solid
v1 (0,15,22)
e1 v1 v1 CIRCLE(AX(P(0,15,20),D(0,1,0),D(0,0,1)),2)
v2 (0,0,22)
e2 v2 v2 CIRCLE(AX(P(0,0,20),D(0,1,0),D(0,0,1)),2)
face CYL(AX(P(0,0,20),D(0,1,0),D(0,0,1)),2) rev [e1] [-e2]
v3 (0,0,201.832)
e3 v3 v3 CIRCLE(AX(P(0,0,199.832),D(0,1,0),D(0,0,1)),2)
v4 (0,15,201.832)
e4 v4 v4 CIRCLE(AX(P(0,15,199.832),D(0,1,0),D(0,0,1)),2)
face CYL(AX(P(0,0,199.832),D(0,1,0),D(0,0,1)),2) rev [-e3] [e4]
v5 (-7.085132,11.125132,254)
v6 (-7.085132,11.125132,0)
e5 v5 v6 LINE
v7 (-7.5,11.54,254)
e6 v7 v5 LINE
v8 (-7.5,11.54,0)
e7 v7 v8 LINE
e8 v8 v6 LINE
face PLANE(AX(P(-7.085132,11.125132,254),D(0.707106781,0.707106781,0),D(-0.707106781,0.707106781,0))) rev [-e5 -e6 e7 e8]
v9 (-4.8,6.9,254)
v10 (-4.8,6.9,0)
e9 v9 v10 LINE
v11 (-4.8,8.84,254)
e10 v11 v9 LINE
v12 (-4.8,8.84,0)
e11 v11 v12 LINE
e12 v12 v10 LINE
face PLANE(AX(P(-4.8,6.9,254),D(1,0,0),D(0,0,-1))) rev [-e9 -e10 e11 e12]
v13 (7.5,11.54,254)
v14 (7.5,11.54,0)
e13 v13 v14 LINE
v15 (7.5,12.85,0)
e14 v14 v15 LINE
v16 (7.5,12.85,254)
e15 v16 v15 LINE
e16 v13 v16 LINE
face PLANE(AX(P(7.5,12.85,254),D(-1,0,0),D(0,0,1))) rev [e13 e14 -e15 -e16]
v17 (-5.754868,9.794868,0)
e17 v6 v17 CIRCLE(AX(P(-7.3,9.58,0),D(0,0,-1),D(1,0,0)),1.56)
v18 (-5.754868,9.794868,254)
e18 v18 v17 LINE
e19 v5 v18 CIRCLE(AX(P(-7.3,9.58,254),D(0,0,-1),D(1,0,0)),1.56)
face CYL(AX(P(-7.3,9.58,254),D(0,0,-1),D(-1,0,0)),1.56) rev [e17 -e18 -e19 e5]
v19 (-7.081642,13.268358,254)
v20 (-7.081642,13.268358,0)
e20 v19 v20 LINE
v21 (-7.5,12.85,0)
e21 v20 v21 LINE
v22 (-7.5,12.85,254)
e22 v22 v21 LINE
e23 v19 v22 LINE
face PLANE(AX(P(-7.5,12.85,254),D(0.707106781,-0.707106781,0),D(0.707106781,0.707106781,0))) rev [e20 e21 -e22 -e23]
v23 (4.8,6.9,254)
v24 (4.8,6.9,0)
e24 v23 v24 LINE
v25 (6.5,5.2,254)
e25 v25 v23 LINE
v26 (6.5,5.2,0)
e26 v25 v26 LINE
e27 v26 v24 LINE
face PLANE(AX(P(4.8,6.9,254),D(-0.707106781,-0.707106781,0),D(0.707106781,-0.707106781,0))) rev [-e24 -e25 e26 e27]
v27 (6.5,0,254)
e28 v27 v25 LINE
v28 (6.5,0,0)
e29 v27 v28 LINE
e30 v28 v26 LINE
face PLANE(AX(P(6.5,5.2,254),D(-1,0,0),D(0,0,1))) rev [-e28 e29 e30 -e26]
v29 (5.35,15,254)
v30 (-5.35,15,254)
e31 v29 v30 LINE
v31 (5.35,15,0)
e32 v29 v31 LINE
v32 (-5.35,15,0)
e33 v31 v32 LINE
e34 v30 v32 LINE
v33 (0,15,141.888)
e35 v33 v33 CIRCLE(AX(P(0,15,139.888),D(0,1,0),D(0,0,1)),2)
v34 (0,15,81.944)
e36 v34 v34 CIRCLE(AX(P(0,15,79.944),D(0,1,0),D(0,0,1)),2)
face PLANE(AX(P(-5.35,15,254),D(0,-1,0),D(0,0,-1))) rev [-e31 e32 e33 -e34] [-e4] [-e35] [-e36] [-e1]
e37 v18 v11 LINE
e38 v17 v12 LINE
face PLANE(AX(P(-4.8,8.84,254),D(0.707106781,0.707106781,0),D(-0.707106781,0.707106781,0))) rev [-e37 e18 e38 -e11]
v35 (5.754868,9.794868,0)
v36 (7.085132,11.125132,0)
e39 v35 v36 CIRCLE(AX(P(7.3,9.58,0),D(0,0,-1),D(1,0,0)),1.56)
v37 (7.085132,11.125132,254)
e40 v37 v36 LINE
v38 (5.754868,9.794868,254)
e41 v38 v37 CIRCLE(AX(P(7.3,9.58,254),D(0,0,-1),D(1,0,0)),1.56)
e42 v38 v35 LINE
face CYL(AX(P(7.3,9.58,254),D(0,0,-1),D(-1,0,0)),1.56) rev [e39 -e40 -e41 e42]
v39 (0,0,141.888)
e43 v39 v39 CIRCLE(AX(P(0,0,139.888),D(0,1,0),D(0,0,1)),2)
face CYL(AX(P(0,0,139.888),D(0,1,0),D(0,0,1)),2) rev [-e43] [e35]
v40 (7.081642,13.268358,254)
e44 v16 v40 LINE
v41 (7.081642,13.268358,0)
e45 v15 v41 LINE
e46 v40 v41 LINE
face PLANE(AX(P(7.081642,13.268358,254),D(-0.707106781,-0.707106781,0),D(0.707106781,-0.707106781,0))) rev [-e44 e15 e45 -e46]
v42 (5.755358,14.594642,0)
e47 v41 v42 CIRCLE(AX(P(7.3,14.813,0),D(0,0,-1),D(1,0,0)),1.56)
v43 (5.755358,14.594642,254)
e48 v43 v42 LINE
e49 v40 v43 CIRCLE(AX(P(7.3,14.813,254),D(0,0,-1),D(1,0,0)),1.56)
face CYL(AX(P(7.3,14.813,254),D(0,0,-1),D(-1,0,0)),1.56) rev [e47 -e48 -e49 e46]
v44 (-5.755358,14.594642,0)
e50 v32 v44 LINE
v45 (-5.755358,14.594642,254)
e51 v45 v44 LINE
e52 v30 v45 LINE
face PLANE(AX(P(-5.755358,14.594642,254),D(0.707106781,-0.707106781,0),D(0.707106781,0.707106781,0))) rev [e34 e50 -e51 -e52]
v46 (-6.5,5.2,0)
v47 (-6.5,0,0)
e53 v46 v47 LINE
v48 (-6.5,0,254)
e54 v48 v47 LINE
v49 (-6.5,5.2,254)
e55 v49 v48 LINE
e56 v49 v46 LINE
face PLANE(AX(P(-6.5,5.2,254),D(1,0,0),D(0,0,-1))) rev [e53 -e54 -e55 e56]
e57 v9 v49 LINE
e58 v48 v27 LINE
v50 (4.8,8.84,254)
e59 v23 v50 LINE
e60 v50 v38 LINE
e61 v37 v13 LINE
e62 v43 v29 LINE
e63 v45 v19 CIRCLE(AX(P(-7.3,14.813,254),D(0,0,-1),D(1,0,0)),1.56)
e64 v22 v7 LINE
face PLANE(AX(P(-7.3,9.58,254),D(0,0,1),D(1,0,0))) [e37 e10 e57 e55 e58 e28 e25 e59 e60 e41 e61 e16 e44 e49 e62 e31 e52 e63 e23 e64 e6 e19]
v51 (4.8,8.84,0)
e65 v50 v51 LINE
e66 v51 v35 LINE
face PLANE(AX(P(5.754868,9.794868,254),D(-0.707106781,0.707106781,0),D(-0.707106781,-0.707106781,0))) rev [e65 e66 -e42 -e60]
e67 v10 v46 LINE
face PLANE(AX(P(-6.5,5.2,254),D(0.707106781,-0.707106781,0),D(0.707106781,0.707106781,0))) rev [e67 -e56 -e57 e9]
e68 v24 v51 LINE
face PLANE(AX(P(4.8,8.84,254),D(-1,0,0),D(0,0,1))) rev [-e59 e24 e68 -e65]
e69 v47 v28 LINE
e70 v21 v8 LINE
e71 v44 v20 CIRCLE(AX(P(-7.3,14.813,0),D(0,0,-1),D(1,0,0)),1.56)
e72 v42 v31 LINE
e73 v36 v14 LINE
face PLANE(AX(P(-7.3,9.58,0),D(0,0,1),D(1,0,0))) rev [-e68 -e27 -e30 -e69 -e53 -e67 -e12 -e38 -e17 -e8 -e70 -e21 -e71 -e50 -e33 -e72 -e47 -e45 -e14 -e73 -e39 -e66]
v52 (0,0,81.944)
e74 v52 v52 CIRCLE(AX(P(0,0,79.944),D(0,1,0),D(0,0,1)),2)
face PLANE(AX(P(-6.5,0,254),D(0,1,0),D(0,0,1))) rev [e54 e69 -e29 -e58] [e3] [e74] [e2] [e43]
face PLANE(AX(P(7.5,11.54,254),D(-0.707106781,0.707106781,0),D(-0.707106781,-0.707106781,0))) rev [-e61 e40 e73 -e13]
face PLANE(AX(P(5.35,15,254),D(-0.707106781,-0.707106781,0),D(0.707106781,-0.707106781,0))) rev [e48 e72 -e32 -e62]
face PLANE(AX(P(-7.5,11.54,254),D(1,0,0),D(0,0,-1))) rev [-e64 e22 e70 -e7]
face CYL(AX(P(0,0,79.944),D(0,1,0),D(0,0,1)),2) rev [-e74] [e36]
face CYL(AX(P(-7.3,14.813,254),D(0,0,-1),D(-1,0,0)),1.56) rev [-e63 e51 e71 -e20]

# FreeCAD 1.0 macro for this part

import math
import FreeCAD as App
import Part
import Sketcher

V = App.Vector

doc = App.newDocument("Part")
body = doc.addObject("PartDesign::Body", "Body")

# Sketch on XY plane
sketch1 = body.newObject("Sketcher::SketchObject", "Sketch")
sketch1.AttachmentSupport = (doc.getObject("XY_Plane"), [""])
sketch1.MapMode = "FlatFace"
sketch1.addGeometry(Part.LineSegment(V(-6.5, 0, 0), V(6.5, 0, 0)), False)
sketch1.addGeometry(Part.LineSegment(V(6.5, 0, 0), V(6.5, 5.2, 0)), False)
sketch1.addGeometry(Part.LineSegment(V(6.5, 5.2, 0), V(4.8, 6.9, 0)), False)
sketch1.addGeometry(Part.LineSegment(V(4.8, 6.9, 0), V(4.8, 8.8, 0)), False)
sketch1.addGeometry(Part.LineSegment(V(4.8, 8.8, 0), V(5.8, 9.8, 0)), False)
sketch1.addGeometry(Part.ArcOfCircle(Part.Circle(V(7.3, 9.6, 0), V(0, 0, 1), 1.6), math.radians(98), math.radians(172)), False)
sketch1.addGeometry(Part.LineSegment(V(7.1, 11.1, 0), V(7.5, 11.5, 0)), False)
sketch1.addGeometry(Part.LineSegment(V(7.5, 11.5, 0), V(7.5, 12.8, 0)), False)
sketch1.addGeometry(Part.LineSegment(V(7.5, 12.8, 0), V(7.1, 13.3, 0)), False)
sketch1.addGeometry(Part.ArcOfCircle(Part.Circle(V(7.3, 14.8, 0), V(0, 0, 1), 1.6), math.radians(-172), math.radians(-98)), False)
sketch1.addGeometry(Part.LineSegment(V(5.8, 14.6, 0), V(5.3, 15, 0)), False)
sketch1.addGeometry(Part.LineSegment(V(5.3, 15, 0), V(-5.3, 15, 0)), False)
sketch1.addGeometry(Part.LineSegment(V(-5.3, 15, 0), V(-5.8, 14.6, 0)), False)
sketch1.addGeometry(Part.ArcOfCircle(Part.Circle(V(-7.3, 14.8, 0), V(0, 0, 1), 1.6), math.radians(-82), math.radians(-8)), False)
sketch1.addGeometry(Part.LineSegment(V(-7.1, 13.3, 0), V(-7.5, 12.8, 0)), False)
sketch1.addGeometry(Part.LineSegment(V(-7.5, 12.8, 0), V(-7.5, 11.5, 0)), False)
sketch1.addGeometry(Part.LineSegment(V(-7.5, 11.5, 0), V(-7.1, 11.1, 0)), False)
sketch1.addGeometry(Part.ArcOfCircle(Part.Circle(V(-7.3, 9.6, 0), V(0, 0, 1), 1.6), math.radians(8), math.radians(82)), False)
sketch1.addGeometry(Part.LineSegment(V(-5.8, 9.8, 0), V(-4.8, 8.8, 0)), False)
sketch1.addGeometry(Part.LineSegment(V(-4.8, 8.8, 0), V(-4.8, 6.9, 0)), False)
sketch1.addGeometry(Part.LineSegment(V(-4.8, 6.9, 0), V(-6.5, 5.2, 0)), False)
sketch1.addGeometry(Part.LineSegment(V(-6.5, 5.2, 0), V(-6.5, 0, 0)), False)
sketch1.addConstraint(Sketcher.Constraint("Coincident", 0, 2, 1, 1))
sketch1.addConstraint(Sketcher.Constraint("Coincident", 1, 2, 2, 1))
sketch1.addConstraint(Sketcher.Constraint("Coincident", 2, 2, 3, 1))
sketch1.addConstraint(Sketcher.Constraint("Coincident", 3, 2, 4, 1))
sketch1.addConstraint(Sketcher.Constraint("Coincident", 4, 2, 5, 2))
sketch1.addConstraint(Sketcher.Constraint("Coincident", 5, 1, 6, 1))
sketch1.addConstraint(Sketcher.Constraint("Coincident", 6, 2, 7, 1))
sketch1.addConstraint(Sketcher.Constraint("Coincident", 7, 2, 8, 1))
sketch1.addConstraint(Sketcher.Constraint("Coincident", 8, 2, 9, 2))
sketch1.addConstraint(Sketcher.Constraint("Coincident", 9, 1, 10, 1))
sketch1.addConstraint(Sketcher.Constraint("Coincident", 10, 2, 11, 1))
sketch1.addConstraint(Sketcher.Constraint("Coincident", 11, 2, 12, 1))
sketch1.addConstraint(Sketcher.Constraint("Coincident", 12, 2, 13, 2))
sketch1.addConstraint(Sketcher.Constraint("Coincident", 13, 1, 14, 1))
sketch1.addConstraint(Sketcher.Constraint("Coincident", 14, 2, 15, 1))
sketch1.addConstraint(Sketcher.Constraint("Coincident", 15, 2, 16, 1))
sketch1.addConstraint(Sketcher.Constraint("Coincident", 16, 2, 17, 2))
sketch1.addConstraint(Sketcher.Constraint("Coincident", 17, 1, 18, 1))
sketch1.addConstraint(Sketcher.Constraint("Coincident", 18, 2, 19, 1))
sketch1.addConstraint(Sketcher.Constraint("Coincident", 19, 2, 20, 1))
sketch1.addConstraint(Sketcher.Constraint("Coincident", 20, 2, 21, 1))
sketch1.addConstraint(Sketcher.Constraint("Coincident", 21, 2, 0, 1))
sketch1.addConstraint(Sketcher.Constraint("Horizontal", 0))
sketch1.addConstraint(Sketcher.Constraint("Vertical", 1))
sketch1.addConstraint(Sketcher.Constraint("Vertical", 3))
sketch1.addConstraint(Sketcher.Constraint("Vertical", 7))
sketch1.addConstraint(Sketcher.Constraint("Horizontal", 11))
sketch1.addConstraint(Sketcher.Constraint("Vertical", 15))
sketch1.addConstraint(Sketcher.Constraint("Vertical", 19))
sketch1.addConstraint(Sketcher.Constraint("Vertical", 21))
sketch1.addConstraint(Sketcher.Constraint("Equal", 5, 9))
sketch1.addConstraint(Sketcher.Constraint("Equal", 9, 13))
sketch1.addConstraint(Sketcher.Constraint("Equal", 13, 17))
sketch1.addConstraint(Sketcher.Constraint("Symmetric", 0, 2, 21, 2, -1, 1))
sketch1.addConstraint(Sketcher.Constraint("Symmetric", 9, 3, 13, 3, -2))
sketch1.addConstraint(Sketcher.Constraint("Symmetric", 5, 3, 17, 3, -2))
sketch1.addConstraint(Sketcher.Constraint("Symmetric", 7, 2, 14, 2, -2))
sketch1.addConstraint(Sketcher.Constraint("Symmetric", 3, 2, 18, 2, -2))
sketch1.addConstraint(Sketcher.Constraint("Perpendicular", 2, 4))
sketch1.addConstraint(Sketcher.Constraint("Parallel", 4, 6))
sketch1.addConstraint(Sketcher.Constraint("Perpendicular", 6, 8))
sketch1.addConstraint(Sketcher.Constraint("Parallel", 8, 10))
sketch1.addConstraint(Sketcher.Constraint("Perpendicular", 10, 12))
sketch1.addConstraint(Sketcher.Constraint("Parallel", 12, 14))
sketch1.addConstraint(Sketcher.Constraint("Perpendicular", 14, 16))
sketch1.addConstraint(Sketcher.Constraint("Parallel", 16, 18))
sketch1.addConstraint(Sketcher.Constraint("Perpendicular", 18, 20))
sketch1.addConstraint(Sketcher.Constraint("Horizontal", 9, 1, 12, 2))
sketch1.addConstraint(Sketcher.Constraint("Horizontal", 8, 2, 13, 1))
sketch1.addConstraint(Sketcher.Constraint("Horizontal", 6, 2, 15, 2))
sketch1.addConstraint(Sketcher.Constraint("Horizontal", 2, 2, 19, 2))
sketch1.addConstraint(Sketcher.Constraint("Vertical", 5, 3, 9, 3))
sketch1.addConstraint(Sketcher.Constraint("DistanceX", 0, 1, 0, 2, 13.0))
sketch1.addConstraint(Sketcher.Constraint("Radius", 5, 1.56))
sketch1.addConstraint(Sketcher.Constraint("DistanceX", 11, 2, 11, 1, 10.7))
sketch1.addConstraint(Sketcher.Constraint("DistanceY", 1, 1, 1, 2, 5.2))
sketch1.addConstraint(Sketcher.Constraint("DistanceY", -1, 1, 10, 2, 15.0))
sketch1.addConstraint(Sketcher.Constraint("DistanceY", 3, 1, 3, 2, 1.94))
sketch1.addConstraint(Sketcher.Constraint("DistanceY", 7, 1, 7, 2, 1.31))
sketch1.addConstraint(Sketcher.Constraint("DistanceX", -1, 1, 5, 3, 7.3))
sketch1.addConstraint(Sketcher.Constraint("DistanceX", -1, 1, 2, 2, 4.8))
sketch1.addConstraint(Sketcher.Constraint("DistanceX", -1, 1, 6, 2, 7.5))
sketch1.addConstraint(Sketcher.Constraint("DistanceY", 3, 2, 6, 2, 2.7))
sketch1.addConstraint(Sketcher.Constraint("DistanceY", -1, 1, 5, 3, 9.58))
sketch1.addConstraint(Sketcher.Constraint("DistanceY", -1, 1, 9, 3, 14.813))
pad1 = body.newObject("PartDesign::Pad", "Pad")
pad1.Profile = sketch1
pad1.Length = 254

# Sketch on XZ plane
sketch2 = body.newObject("Sketcher::SketchObject", "Sketch001")
sketch2.AttachmentSupport = (doc.getObject("XZ_Plane"), [""])
sketch2.MapMode = "FlatFace"
sketch2.AttachmentOffset = App.Placement(V(0, 0, -15), App.Rotation())
sketch2.addGeometry(Part.Circle(V(0, 20, 0), V(0, 0, 1), 2), False)
sketch2.addGeometry(Part.Circle(V(0, 79.9, 0), V(0, 0, 1), 2), False)
sketch2.addGeometry(Part.Circle(V(0, 139.9, 0), V(0, 0, 1), 2), False)
sketch2.addGeometry(Part.Circle(V(0, 199.8, 0), V(0, 0, 1), 2), False)
sketch2.addConstraint(Sketcher.Constraint("Equal", 0, 1))
sketch2.addConstraint(Sketcher.Constraint("Equal", 1, 2))
sketch2.addConstraint(Sketcher.Constraint("Equal", 2, 3))
sketch2.addConstraint(Sketcher.Constraint("PointOnObject", 0, 3, -2))
sketch2.addConstraint(Sketcher.Constraint("PointOnObject", 1, 3, -2))
sketch2.addConstraint(Sketcher.Constraint("PointOnObject", 2, 3, -2))
sketch2.addConstraint(Sketcher.Constraint("PointOnObject", 3, 3, -2))
sketch2.addConstraint(Sketcher.Constraint("Diameter", 0, 4.0))
sketch2.addConstraint(Sketcher.Constraint("DistanceY", -1, 1, 0, 3, 20.0))
sketch2.addConstraint(Sketcher.Constraint("DistanceY", -1, 1, 1, 3, 79.944))
sketch2.addConstraint(Sketcher.Constraint("DistanceY", -1, 1, 2, 3, 139.888))
sketch2.addConstraint(Sketcher.Constraint("DistanceY", -1, 1, 3, 3, 199.832))
pocket1 = body.newObject("PartDesign::Pocket", "Pocket")
pocket1.Profile = sketch2
pocket1.Type = "ThroughAll"
pocket1.Reversed = True

doc.recompute()
